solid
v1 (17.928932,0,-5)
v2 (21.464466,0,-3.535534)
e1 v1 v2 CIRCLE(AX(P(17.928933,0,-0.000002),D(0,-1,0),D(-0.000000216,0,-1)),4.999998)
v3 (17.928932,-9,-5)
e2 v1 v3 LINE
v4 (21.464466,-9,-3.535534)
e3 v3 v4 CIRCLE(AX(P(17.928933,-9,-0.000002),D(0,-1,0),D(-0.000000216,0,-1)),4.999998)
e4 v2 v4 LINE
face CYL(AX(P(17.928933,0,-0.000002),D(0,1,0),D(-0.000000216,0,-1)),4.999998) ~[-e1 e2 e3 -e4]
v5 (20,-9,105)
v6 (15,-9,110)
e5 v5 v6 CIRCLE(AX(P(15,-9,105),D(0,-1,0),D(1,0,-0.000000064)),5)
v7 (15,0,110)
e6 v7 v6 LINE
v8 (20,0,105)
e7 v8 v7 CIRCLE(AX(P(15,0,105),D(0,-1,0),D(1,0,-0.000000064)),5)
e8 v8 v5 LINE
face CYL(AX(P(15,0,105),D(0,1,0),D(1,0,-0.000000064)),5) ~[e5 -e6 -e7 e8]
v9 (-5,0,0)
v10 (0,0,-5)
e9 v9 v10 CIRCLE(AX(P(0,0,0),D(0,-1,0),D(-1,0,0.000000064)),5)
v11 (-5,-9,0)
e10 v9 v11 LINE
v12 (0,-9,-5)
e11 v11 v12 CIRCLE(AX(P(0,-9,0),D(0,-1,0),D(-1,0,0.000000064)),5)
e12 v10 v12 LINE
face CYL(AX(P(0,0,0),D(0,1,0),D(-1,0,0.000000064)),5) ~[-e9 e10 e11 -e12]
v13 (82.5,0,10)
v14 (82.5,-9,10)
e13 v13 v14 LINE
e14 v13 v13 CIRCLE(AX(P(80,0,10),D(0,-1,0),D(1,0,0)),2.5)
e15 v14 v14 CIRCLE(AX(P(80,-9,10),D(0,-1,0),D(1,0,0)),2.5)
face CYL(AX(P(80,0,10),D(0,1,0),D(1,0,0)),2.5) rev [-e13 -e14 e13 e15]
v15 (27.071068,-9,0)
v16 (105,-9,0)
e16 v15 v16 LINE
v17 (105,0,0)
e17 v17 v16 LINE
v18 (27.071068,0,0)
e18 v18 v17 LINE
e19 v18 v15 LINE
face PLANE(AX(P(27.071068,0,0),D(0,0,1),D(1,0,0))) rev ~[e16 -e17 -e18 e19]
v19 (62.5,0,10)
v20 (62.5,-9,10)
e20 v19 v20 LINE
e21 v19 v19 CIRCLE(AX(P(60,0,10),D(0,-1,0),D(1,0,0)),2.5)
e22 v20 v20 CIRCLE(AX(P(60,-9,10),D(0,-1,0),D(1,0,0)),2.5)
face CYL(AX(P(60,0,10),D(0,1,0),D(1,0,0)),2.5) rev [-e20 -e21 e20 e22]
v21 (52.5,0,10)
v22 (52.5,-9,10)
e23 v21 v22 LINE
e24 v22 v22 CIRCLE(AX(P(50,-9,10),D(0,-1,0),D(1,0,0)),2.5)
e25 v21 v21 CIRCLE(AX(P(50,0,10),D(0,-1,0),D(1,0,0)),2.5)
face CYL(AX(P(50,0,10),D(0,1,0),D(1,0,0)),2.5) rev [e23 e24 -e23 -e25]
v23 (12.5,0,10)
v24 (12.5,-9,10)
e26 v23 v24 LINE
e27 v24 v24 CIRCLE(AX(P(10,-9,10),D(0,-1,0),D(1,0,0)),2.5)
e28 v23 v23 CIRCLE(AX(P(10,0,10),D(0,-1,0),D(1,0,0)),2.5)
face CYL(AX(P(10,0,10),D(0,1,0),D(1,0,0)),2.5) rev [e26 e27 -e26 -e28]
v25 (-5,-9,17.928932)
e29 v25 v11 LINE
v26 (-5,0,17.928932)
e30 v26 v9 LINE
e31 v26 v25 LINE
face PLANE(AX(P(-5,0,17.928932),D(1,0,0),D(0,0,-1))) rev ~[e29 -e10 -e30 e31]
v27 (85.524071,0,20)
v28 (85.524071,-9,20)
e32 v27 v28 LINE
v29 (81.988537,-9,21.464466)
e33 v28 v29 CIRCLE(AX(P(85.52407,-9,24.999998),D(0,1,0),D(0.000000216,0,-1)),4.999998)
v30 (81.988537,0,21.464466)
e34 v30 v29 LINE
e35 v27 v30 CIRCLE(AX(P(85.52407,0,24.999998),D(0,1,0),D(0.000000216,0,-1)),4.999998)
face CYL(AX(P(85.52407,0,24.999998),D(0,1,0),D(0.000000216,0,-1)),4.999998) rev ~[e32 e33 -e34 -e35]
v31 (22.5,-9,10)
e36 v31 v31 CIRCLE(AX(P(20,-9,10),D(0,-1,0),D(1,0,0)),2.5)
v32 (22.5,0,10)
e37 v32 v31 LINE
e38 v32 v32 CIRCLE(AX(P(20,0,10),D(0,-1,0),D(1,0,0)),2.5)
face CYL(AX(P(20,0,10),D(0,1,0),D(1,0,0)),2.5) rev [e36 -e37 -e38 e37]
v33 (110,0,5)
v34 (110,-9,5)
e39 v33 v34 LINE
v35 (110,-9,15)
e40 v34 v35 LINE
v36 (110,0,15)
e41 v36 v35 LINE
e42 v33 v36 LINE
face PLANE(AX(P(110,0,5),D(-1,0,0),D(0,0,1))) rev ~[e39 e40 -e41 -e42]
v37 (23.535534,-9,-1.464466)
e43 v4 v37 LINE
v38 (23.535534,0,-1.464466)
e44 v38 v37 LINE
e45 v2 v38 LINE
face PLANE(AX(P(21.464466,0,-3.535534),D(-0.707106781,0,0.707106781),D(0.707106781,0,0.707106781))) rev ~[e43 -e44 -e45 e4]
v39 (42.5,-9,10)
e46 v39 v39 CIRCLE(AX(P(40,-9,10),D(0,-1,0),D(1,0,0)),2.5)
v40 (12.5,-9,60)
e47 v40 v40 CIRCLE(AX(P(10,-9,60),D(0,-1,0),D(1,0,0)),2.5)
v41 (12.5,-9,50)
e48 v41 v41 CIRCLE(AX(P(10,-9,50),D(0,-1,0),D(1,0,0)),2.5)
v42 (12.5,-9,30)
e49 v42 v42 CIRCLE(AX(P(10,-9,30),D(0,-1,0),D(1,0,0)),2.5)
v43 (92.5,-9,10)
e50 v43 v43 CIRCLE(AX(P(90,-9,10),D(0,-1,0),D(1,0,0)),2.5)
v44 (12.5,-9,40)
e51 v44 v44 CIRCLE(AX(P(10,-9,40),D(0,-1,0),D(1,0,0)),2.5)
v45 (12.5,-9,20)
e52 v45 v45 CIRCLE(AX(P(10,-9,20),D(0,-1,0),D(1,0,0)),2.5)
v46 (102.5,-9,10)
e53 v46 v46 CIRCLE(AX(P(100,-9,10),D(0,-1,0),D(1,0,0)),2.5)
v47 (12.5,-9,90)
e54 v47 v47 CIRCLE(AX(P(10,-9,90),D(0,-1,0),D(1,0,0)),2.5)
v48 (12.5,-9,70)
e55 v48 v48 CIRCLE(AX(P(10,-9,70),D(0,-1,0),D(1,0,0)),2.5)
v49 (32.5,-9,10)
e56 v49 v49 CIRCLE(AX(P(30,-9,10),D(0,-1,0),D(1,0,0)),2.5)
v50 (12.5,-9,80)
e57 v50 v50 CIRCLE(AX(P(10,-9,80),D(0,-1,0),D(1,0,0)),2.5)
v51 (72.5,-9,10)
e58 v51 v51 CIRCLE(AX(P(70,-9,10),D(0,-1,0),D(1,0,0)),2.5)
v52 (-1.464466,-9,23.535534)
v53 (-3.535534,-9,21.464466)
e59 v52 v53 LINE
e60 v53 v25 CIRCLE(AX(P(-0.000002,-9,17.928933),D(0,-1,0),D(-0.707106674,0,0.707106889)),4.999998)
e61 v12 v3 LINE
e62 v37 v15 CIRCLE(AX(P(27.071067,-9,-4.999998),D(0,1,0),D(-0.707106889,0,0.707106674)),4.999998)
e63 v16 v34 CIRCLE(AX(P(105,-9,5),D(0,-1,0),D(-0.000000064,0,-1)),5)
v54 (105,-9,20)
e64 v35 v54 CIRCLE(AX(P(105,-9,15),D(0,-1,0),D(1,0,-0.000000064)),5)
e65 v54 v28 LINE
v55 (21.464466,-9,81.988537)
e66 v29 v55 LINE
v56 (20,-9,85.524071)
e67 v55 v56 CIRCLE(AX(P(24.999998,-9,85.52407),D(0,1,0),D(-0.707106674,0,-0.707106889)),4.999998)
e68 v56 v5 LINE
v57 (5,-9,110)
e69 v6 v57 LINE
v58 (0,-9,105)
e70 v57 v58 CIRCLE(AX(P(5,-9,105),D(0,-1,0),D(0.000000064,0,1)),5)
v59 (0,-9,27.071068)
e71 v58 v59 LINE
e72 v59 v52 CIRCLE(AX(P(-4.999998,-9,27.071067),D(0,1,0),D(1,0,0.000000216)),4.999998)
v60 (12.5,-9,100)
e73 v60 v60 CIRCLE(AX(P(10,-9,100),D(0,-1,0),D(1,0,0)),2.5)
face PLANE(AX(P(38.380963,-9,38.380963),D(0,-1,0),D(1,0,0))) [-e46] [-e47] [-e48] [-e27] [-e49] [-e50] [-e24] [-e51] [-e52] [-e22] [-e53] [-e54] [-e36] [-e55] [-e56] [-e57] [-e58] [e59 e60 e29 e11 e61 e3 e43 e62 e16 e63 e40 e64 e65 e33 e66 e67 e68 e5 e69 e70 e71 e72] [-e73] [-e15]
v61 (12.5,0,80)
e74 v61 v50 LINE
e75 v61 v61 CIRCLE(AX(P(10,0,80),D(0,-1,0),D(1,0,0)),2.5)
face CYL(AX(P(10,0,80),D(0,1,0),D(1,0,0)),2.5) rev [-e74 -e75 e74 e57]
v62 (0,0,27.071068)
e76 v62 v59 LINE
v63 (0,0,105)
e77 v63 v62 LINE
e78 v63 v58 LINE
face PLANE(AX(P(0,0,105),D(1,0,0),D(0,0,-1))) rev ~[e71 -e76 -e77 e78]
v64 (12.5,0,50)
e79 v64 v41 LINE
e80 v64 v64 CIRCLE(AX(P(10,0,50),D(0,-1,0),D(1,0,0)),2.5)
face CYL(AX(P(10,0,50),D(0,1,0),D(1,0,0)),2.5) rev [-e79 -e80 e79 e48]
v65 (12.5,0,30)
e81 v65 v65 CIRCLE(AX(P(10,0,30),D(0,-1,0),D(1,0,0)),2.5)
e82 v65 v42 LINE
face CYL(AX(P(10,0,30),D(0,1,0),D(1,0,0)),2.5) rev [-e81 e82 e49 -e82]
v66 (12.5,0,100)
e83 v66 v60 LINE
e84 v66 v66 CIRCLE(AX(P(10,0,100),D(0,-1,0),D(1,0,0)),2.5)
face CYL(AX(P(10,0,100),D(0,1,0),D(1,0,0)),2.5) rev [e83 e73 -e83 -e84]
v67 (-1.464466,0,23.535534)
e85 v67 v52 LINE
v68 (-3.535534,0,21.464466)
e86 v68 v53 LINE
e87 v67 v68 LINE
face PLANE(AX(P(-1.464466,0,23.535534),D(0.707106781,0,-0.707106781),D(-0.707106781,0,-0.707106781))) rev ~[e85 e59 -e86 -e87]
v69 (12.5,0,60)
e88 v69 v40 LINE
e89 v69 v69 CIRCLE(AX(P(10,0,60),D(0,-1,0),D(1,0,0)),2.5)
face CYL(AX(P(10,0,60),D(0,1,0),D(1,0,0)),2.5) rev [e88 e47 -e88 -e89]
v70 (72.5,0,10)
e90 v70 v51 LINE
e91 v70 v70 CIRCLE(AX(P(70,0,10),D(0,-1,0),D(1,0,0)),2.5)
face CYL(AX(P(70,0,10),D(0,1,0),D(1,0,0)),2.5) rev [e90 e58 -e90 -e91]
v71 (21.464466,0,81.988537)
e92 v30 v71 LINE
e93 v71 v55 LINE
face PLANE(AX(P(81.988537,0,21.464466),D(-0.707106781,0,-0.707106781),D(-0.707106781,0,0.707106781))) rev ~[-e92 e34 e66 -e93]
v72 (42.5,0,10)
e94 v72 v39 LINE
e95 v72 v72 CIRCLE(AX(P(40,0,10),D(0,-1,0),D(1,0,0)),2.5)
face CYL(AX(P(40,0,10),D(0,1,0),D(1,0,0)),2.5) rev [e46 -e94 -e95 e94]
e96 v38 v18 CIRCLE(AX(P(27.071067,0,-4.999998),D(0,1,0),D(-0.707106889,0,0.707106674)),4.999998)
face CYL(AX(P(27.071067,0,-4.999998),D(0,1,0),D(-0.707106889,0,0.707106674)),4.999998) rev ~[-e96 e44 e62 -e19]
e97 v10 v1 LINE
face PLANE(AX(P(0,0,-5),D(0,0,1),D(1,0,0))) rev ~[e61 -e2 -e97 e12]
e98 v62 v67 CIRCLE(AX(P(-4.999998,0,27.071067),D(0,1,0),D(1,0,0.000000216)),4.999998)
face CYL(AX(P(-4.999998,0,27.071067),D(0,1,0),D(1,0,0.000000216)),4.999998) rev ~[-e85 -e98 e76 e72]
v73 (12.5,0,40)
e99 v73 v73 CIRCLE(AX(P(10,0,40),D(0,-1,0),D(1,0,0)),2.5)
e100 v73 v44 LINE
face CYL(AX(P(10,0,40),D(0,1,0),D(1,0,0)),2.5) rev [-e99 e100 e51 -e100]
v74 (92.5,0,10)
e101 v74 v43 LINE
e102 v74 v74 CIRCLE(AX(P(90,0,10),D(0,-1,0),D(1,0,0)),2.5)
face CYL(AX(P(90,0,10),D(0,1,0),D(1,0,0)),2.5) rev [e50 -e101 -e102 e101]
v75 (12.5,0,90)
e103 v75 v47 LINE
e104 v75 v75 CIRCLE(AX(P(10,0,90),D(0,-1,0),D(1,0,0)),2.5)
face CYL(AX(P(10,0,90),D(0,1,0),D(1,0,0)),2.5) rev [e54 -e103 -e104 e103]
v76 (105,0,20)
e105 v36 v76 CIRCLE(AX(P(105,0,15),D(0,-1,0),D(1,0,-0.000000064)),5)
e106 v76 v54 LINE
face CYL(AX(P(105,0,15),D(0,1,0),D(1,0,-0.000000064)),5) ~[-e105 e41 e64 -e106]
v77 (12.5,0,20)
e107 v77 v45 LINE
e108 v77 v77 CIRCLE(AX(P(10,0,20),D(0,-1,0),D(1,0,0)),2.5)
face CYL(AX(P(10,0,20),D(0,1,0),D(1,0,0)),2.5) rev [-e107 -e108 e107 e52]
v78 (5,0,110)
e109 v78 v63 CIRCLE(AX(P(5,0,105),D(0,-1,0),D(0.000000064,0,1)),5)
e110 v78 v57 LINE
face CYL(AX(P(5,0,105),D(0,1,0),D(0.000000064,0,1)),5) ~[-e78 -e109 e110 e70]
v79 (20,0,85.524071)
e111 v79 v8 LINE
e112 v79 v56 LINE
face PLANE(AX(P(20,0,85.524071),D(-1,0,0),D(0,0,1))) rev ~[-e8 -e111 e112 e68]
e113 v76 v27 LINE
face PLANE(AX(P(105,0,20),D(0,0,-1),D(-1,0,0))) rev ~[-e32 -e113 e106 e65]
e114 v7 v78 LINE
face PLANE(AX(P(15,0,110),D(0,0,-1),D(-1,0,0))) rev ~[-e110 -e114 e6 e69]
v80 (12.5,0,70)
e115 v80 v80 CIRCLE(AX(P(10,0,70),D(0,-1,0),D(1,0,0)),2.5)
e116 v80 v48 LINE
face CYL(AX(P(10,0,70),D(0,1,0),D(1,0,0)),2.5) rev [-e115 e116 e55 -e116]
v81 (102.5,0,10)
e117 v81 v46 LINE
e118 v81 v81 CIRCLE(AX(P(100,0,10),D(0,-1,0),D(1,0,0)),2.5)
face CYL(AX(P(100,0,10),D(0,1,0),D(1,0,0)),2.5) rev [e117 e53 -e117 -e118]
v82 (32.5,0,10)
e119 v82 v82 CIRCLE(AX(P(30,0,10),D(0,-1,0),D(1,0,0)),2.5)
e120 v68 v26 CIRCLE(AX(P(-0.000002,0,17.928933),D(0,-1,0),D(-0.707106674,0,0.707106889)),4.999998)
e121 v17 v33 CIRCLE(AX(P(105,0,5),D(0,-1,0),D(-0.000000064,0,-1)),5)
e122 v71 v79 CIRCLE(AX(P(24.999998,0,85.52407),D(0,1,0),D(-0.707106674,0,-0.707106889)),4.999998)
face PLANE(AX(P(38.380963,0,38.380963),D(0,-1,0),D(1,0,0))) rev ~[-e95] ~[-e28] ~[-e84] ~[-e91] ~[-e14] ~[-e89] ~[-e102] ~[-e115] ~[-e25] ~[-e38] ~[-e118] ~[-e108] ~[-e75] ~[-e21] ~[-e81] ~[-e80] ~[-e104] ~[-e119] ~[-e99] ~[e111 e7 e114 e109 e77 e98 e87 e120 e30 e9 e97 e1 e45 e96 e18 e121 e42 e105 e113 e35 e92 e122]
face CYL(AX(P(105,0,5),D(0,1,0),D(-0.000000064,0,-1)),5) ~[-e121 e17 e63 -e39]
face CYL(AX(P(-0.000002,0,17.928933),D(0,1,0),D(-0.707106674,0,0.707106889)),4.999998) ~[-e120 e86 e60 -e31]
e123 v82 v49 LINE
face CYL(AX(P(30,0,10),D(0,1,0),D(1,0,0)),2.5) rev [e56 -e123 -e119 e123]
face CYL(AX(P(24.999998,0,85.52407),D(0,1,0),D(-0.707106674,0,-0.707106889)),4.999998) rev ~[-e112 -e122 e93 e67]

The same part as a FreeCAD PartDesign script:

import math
import FreeCAD as App
import Part
import Sketcher

V = App.Vector

doc = App.newDocument("Part")
body = doc.addObject("PartDesign::Body", "Body")

# Sketch on XZ plane
sketch1 = body.newObject("Sketcher::SketchObject", "Sketch")
sketch1.AttachmentSupport = (doc.getObject("XZ_Plane"), [""])
sketch1.MapMode = "FlatFace"
sketch1.addGeometry([
    Part.ArcOfCircle(Part.Circle(V(5, 105, 0), V(0, 0, 1), 5), math.radians(89.999996), math.radians(180.000004)),  # 0
    Part.LineSegment(V(0, 105, 0), V(0, 27.071068, 0)),  # 1
    Part.ArcOfCircle(Part.Circle(V(-4.999998, 27.071067, 0), V(0, 0, 1), 4.999998), math.radians(-45.000009), math.radians(0.000012)),  # 2
    Part.LineSegment(V(-1.464466, 23.535534, 0), V(-3.535534, 21.464466, 0)),  # 3
    Part.ArcOfCircle(Part.Circle(V(-0.000002, 17.928933, 0), V(0, 0, 1), 4.999998), math.radians(134.999991), math.radians(180.000012)),  # 4
    Part.LineSegment(V(-5, 17.928932, 0), V(-5, 0, 0)),  # 5
    Part.ArcOfCircle(Part.Circle(V(0, 0, 0), V(0, 0, 1), 5), math.radians(179.999996), math.radians(270.000004)),  # 6
    Part.LineSegment(V(0, -5, 0), V(17.928932, -5, 0)),  # 7
    Part.ArcOfCircle(Part.Circle(V(17.928933, -0.000002, 0), V(0, 0, 1), 4.999998), math.radians(-90.000012), math.radians(-44.999991)),  # 8
    Part.LineSegment(V(21.464466, -3.535534, 0), V(23.535534, -1.464466, 0)),  # 9
    Part.ArcOfCircle(Part.Circle(V(27.071067, -4.999998, 0), V(0, 0, 1), 4.999998), math.radians(89.999988), math.radians(135.000009)),  # 10
    Part.LineSegment(V(27.071068, 0, 0), V(105, 0, 0)),  # 11
    Part.ArcOfCircle(Part.Circle(V(105, 5, 0), V(0, 0, 1), 5), math.radians(-90.000004), math.radians(0.000004)),  # 12
    Part.LineSegment(V(110, 5, 0), V(110, 15, 0)),  # 13
    Part.ArcOfCircle(Part.Circle(V(105, 15, 0), V(0, 0, 1), 5), math.radians(-0.000004), math.radians(90.000004)),  # 14
    Part.LineSegment(V(105, 20, 0), V(85.524071, 20, 0)),  # 15
    Part.ArcOfCircle(Part.Circle(V(85.52407, 24.999998, 0), V(0, 0, 1), 4.999998), math.radians(-135.000009), math.radians(-89.999988)),  # 16
    Part.LineSegment(V(81.988537, 21.464466, 0), V(21.464466, 81.988537, 0)),  # 17
    Part.ArcOfCircle(Part.Circle(V(24.999998, 85.52407, 0), V(0, 0, 1), 4.999998), math.radians(179.999988), math.radians(225.000009)),  # 18
    Part.LineSegment(V(20, 85.524071, 0), V(20, 105, 0)),  # 19
    Part.ArcOfCircle(Part.Circle(V(15, 105, 0), V(0, 0, 1), 5), math.radians(-0.000004), math.radians(90.000004)),  # 20
    Part.LineSegment(V(15, 110, 0), V(5, 110, 0)),  # 21
    Part.Circle(V(10, 10, 0), V(0, 0, 1), 2.5),  # 22
    Part.Circle(V(20, 10, 0), V(0, 0, 1), 2.5),  # 23
    Part.Circle(V(30, 10, 0), V(0, 0, 1), 2.5),  # 24
    Part.Circle(V(10, 20, 0), V(0, 0, 1), 2.5),  # 25
    Part.Circle(V(10, 30, 0), V(0, 0, 1), 2.5),  # 26
    Part.Circle(V(40, 10, 0), V(0, 0, 1), 2.5),  # 27
    Part.Circle(V(50, 10, 0), V(0, 0, 1), 2.5),  # 28
    Part.Circle(V(10, 40, 0), V(0, 0, 1), 2.5),  # 29
    Part.Circle(V(10, 50, 0), V(0, 0, 1), 2.5),  # 30
    Part.Circle(V(60, 10, 0), V(0, 0, 1), 2.5),  # 31
    Part.Circle(V(70, 10, 0), V(0, 0, 1), 2.5),  # 32
    Part.Circle(V(80, 10, 0), V(0, 0, 1), 2.5),  # 33
    Part.Circle(V(90, 10, 0), V(0, 0, 1), 2.5),  # 34
    Part.Circle(V(100, 10, 0), V(0, 0, 1), 2.5),  # 35
    Part.Circle(V(10, 60, 0), V(0, 0, 1), 2.5),  # 36
    Part.Circle(V(10, 70, 0), V(0, 0, 1), 2.5),  # 37
    Part.Circle(V(10, 80, 0), V(0, 0, 1), 2.5),  # 38
    Part.Circle(V(10, 90, 0), V(0, 0, 1), 2.5),  # 39
    Part.Circle(V(10, 100, 0), V(0, 0, 1), 2.5),  # 40
], False)
sketch1.addConstraint([
    Sketcher.Constraint("Tangent", 0, 2, 1, 1),
    Sketcher.Constraint("Tangent", 1, 2, 2, 2),
    Sketcher.Constraint("Tangent", 2, 1, 3, 1),
    Sketcher.Constraint("Tangent", 3, 2, 4, 1),
    Sketcher.Constraint("Tangent", 4, 2, 5, 1),
    Sketcher.Constraint("Tangent", 5, 2, 6, 1),
    Sketcher.Constraint("Tangent", 6, 2, 7, 1),
    Sketcher.Constraint("Tangent", 7, 2, 8, 1),
    Sketcher.Constraint("Tangent", 8, 2, 9, 1),
    Sketcher.Constraint("Tangent", 9, 2, 10, 2),
    Sketcher.Constraint("Tangent", 10, 1, 11, 1),
    Sketcher.Constraint("Tangent", 11, 2, 12, 1),
    Sketcher.Constraint("Tangent", 12, 2, 13, 1),
    Sketcher.Constraint("Tangent", 13, 2, 14, 1),
    Sketcher.Constraint("Tangent", 14, 2, 15, 1),
    Sketcher.Constraint("Tangent", 15, 2, 16, 2),
    Sketcher.Constraint("Tangent", 16, 1, 17, 1),
    Sketcher.Constraint("Tangent", 17, 2, 18, 2),
    Sketcher.Constraint("Tangent", 18, 1, 19, 1),
    Sketcher.Constraint("Tangent", 19, 2, 20, 1),
    Sketcher.Constraint("Tangent", 20, 2, 21, 1),
    Sketcher.Constraint("Tangent", 21, 2, 0, 1),
    Sketcher.Constraint("Vertical", 1),
    Sketcher.Constraint("Vertical", 5),
    Sketcher.Constraint("Horizontal", 7),
    Sketcher.Constraint("Horizontal", 11),
    Sketcher.Constraint("Vertical", 13),
    Sketcher.Constraint("Horizontal", 15),
    Sketcher.Constraint("Vertical", 19),
    Sketcher.Constraint("Horizontal", 21),
    Sketcher.Constraint("Coincident", 6, 3, -1, 1),
    Sketcher.Constraint("Equal", 0, 2),
    Sketcher.Constraint("Equal", 2, 4),
    Sketcher.Constraint("Equal", 4, 6),
    Sketcher.Constraint("Equal", 6, 8),
    Sketcher.Constraint("Equal", 8, 10),
    Sketcher.Constraint("Equal", 10, 12),
    Sketcher.Constraint("Equal", 12, 14),
    Sketcher.Constraint("Equal", 14, 16),
    Sketcher.Constraint("Equal", 16, 18),
    Sketcher.Constraint("Equal", 18, 20),
    Sketcher.Constraint("Equal", 22, 23),
    Sketcher.Constraint("Equal", 23, 24),
    Sketcher.Constraint("Equal", 24, 25),
    Sketcher.Constraint("Equal", 25, 26),
    Sketcher.Constraint("Equal", 26, 27),
    Sketcher.Constraint("Equal", 27, 28),
    Sketcher.Constraint("Equal", 28, 29),
    Sketcher.Constraint("Equal", 29, 30),
    Sketcher.Constraint("Equal", 30, 31),
    Sketcher.Constraint("Equal", 31, 32),
    Sketcher.Constraint("Equal", 32, 33),
    Sketcher.Constraint("Equal", 33, 34),
    Sketcher.Constraint("Equal", 34, 35),
    Sketcher.Constraint("Equal", 35, 36),
    Sketcher.Constraint("Equal", 36, 37),
    Sketcher.Constraint("Equal", 37, 38),
    Sketcher.Constraint("Equal", 38, 39),
    Sketcher.Constraint("Equal", 39, 40),
    Sketcher.Constraint("PointOnObject", 0, 2, -2),
    Sketcher.Constraint("PointOnObject", 10, 1, -1),
    Sketcher.Constraint("Parallel", 3, 9),
    Sketcher.Constraint("Perpendicular", 9, 17),
    Sketcher.Constraint("Horizontal", 22, 3, 23, 3),
    Sketcher.Constraint("Horizontal", 23, 3, 24, 3),
    Sketcher.Constraint("Horizontal", 24, 3, 27, 3),
    Sketcher.Constraint("Horizontal", 27, 3, 28, 3),
    Sketcher.Constraint("Horizontal", 28, 3, 31, 3),
    Sketcher.Constraint("Horizontal", 31, 3, 32, 3),
    Sketcher.Constraint("Horizontal", 32, 3, 33, 3),
    Sketcher.Constraint("Horizontal", 33, 3, 34, 3),
    Sketcher.Constraint("Horizontal", 34, 3, 35, 3),
    Sketcher.Constraint("Horizontal", 25, 3, 14, 2),
    Sketcher.Constraint("Horizontal", 3, 2, 16, 1),
    Sketcher.Constraint("Vertical", 22, 3, 25, 3),
    Sketcher.Constraint("Vertical", 25, 3, 26, 3),
    Sketcher.Constraint("Vertical", 26, 3, 29, 3),
    Sketcher.Constraint("Vertical", 29, 3, 30, 3),
    Sketcher.Constraint("Vertical", 30, 3, 36, 3),
    Sketcher.Constraint("Vertical", 36, 3, 37, 3),
    Sketcher.Constraint("Vertical", 37, 3, 38, 3),
    Sketcher.Constraint("Vertical", 38, 3, 39, 3),
    Sketcher.Constraint("Vertical", 39, 3, 40, 3),
    Sketcher.Constraint("Vertical", 8, 2, 17, 2),
    Sketcher.Constraint("Vertical", 23, 3, 18, 1),
    Sketcher.Constraint("Equal", 11, 1),
    Sketcher.Constraint("Equal", 7, 5),
    Sketcher.Constraint("Equal", 15, 19),
    Sketcher.Constraint("Diameter", 22, 5.0),
    Sketcher.Constraint("Radius", 0, 5.0),
    Sketcher.Constraint("DistanceX", 21, 2, 21, 1, 10.0),
    Sketcher.Constraint("DistanceY", -1, 1, 0, 3, 105.0),
    Sketcher.Constraint("DistanceX", -1, 1, 22, 3, 10.0),
    Sketcher.Constraint("DistanceY", -1, 1, 22, 3, 10.0),
    Sketcher.Constraint("DistanceX", -1, 1, 24, 3, 30.0),
    Sketcher.Constraint("DistanceY", -1, 1, 26, 3, 30.0),
    Sketcher.Constraint("DistanceX", -1, 1, 27, 3, 40.0),
    Sketcher.Constraint("DistanceX", -1, 1, 28, 3, 50.0),
    Sketcher.Constraint("DistanceY", -1, 1, 29, 3, 40.0),
    Sketcher.Constraint("DistanceY", -1, 1, 30, 3, 50.0),
    Sketcher.Constraint("DistanceX", -1, 1, 31, 3, 60.0),
    Sketcher.Constraint("DistanceX", -1, 1, 32, 3, 70.0),
    Sketcher.Constraint("DistanceX", -1, 1, 33, 3, 80.0),
    Sketcher.Constraint("DistanceX", -1, 1, 34, 3, 90.0),
    Sketcher.Constraint("DistanceX", -1, 1, 35, 3, 100.0),
    Sketcher.Constraint("DistanceY", -1, 1, 36, 3, 60.0),
    Sketcher.Constraint("DistanceY", -1, 1, 37, 3, 70.0),
    Sketcher.Constraint("DistanceY", -1, 1, 38, 3, 80.0),
    Sketcher.Constraint("DistanceY", -1, 1, 39, 3, 90.0),
    Sketcher.Constraint("DistanceY", -1, 1, 40, 3, 100.0),
    Sketcher.Constraint("DistanceX", 15, 2, 15, 1, 19.475929),
])
pad1 = body.newObject("PartDesign::Pad", "Pad")
pad1.Profile = sketch1
pad1.Length = 9

doc.recompute()
